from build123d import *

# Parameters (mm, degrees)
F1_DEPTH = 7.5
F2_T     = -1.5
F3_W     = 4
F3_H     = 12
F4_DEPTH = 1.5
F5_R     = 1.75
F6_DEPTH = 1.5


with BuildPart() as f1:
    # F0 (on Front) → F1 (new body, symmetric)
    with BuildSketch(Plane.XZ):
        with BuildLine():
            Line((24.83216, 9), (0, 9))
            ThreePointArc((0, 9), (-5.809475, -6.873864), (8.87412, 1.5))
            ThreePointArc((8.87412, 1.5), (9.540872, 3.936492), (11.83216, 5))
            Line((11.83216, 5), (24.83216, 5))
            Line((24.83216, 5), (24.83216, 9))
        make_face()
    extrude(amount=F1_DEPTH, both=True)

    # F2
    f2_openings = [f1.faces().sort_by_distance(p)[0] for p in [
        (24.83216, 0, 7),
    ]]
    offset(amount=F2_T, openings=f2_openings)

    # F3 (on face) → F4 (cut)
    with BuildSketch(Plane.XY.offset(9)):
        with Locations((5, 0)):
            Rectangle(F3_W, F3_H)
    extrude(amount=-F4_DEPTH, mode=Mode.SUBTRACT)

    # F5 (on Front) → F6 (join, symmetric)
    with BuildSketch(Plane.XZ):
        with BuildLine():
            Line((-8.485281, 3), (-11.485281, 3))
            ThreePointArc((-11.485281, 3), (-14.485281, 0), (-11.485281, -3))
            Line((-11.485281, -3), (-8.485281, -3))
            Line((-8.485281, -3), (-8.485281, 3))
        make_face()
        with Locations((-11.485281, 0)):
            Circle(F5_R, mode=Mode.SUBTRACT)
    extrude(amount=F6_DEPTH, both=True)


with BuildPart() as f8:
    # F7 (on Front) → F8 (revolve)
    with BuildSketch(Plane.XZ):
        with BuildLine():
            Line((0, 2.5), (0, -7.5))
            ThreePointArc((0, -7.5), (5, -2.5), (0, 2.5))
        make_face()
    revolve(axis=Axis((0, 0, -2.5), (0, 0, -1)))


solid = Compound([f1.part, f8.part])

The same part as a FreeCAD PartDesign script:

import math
import FreeCAD as App
import Part
import Sketcher

V = App.Vector
Q = App.Units.Quantity


def faces_at(feature, points):
    """Names of the faces that lie closest to the given points."""
    faces = feature.Shape.Faces
    near = lambda p: min(range(len(faces)), key=lambda i: faces[i].distToShape(Part.Vertex(*p))[0])
    return sorted({f"Face{near(p) + 1}" for p in points})

doc = App.newDocument("Part")
body = doc.addObject("PartDesign::Body", "Body")

sketch1 = body.newObject("Sketcher::SketchObject", "Sketch")
sketch1.AttachmentSupport = (doc.getObject("XZ_Plane"), [""])
sketch1.MapMode = "FlatFace"
sketch1.addGeometry(Part.LineSegment(V(24.8, 9, 0), V(0, 9, 0)), False)
sketch1.addGeometry(Part.ArcOfCircle(Part.Circle(V(0, 0, 0), V(0, 0, 1), 9), math.radians(90), math.radians(370)), False)
sketch1.addGeometry(Part.ArcOfCircle(Part.Circle(V(11.8, 2, 0), V(0, 0, 1), 3), math.radians(90), math.radians(190)), False)
sketch1.addGeometry(Part.LineSegment(V(11.8, 5, 0), V(24.8, 5, 0)), False)
sketch1.addGeometry(Part.LineSegment(V(24.8, 5, 0), V(24.8, 9, 0)), False)
sketch1.addConstraint(Sketcher.Constraint("Tangent", 0, 2, 1, 1))
sketch1.addConstraint(Sketcher.Constraint("Tangent", 1, 2, 2, 2))
sketch1.addConstraint(Sketcher.Constraint("Tangent", 2, 1, 3, 1))
sketch1.addConstraint(Sketcher.Constraint("Coincident", 3, 2, 4, 1))
sketch1.addConstraint(Sketcher.Constraint("Coincident", 4, 2, 0, 1))
sketch1.addConstraint(Sketcher.Constraint("Horizontal", 0))
sketch1.addConstraint(Sketcher.Constraint("Horizontal", 3))
sketch1.addConstraint(Sketcher.Constraint("Vertical", 4))
sketch1.addConstraint(Sketcher.Constraint("Coincident", 1, 3, -1, 1))
sketch1.addConstraint(Sketcher.Constraint("Radius", 1, Q("9 mm")))
sketch1.addConstraint(Sketcher.Constraint("Radius", 2, Q("3 mm")))
sketch1.addConstraint(Sketcher.Constraint("DistanceX", 3, 1, 3, 2, Q("13 mm")))
sketch1.addConstraint(Sketcher.Constraint("DistanceY", 4, 1, 4, 2, Q("4 mm")))
pad1 = body.newObject("PartDesign::Pad", "Pad")
pad1.Profile = sketch1
pad1.Length = 15
pad1.Midplane = True
doc.recompute()

thickness = body.newObject("PartDesign::Thickness", "Thickness")
thickness.Base = (pad1, faces_at(pad1, [(24.832, 0, 7)]))
thickness.Value = 1.5
thickness.Reversed = True
thickness.Join = "Arc"

sketch2 = body.newObject("Sketcher::SketchObject", "Sketch001")
sketch2.AttachmentSupport = (doc.getObject("XY_Plane"), [""])
sketch2.MapMode = "FlatFace"
sketch2.AttachmentOffset = App.Placement(V(0, 0, 9), App.Rotation())
sketch2.addGeometry(Part.LineSegment(V(3, 6, 0), V(3, -6, 0)), False)
sketch2.addGeometry(Part.LineSegment(V(3, -6, 0), V(7, -6, 0)), False)
sketch2.addGeometry(Part.LineSegment(V(7, -6, 0), V(7, 6, 0)), False)
sketch2.addGeometry(Part.LineSegment(V(7, 6, 0), V(3, 6, 0)), False)
sketch2.addConstraint(Sketcher.Constraint("Coincident", 0, 2, 1, 1))
sketch2.addConstraint(Sketcher.Constraint("Coincident", 1, 2, 2, 1))
sketch2.addConstraint(Sketcher.Constraint("Coincident", 2, 2, 3, 1))
sketch2.addConstraint(Sketcher.Constraint("Coincident", 3, 2, 0, 1))
sketch2.addConstraint(Sketcher.Constraint("Vertical", 0))
sketch2.addConstraint(Sketcher.Constraint("Horizontal", 1))
sketch2.addConstraint(Sketcher.Constraint("Vertical", 2))
sketch2.addConstraint(Sketcher.Constraint("Horizontal", 3))
sketch2.addConstraint(Sketcher.Constraint("DistanceX", 1, 1, 1, 2, Q("4 mm")))
sketch2.addConstraint(Sketcher.Constraint("DistanceY", 0, 2, 0, 1, Q("12 mm")))
sketch2.addConstraint(Sketcher.Constraint("DistanceX", -1, 1, 0, 2, Q("3 mm")))
sketch2.addConstraint(Sketcher.Constraint("DistanceY", 0, 2, -1, 1, Q("6 mm")))
pocket1 = body.newObject("PartDesign::Pocket", "Pocket")
pocket1.Profile = sketch2
pocket1.Length = 1.5

sketch3 = body.newObject("Sketcher::SketchObject", "Sketch002")
sketch3.AttachmentSupport = (doc.getObject("XZ_Plane"), [""])
sketch3.MapMode = "FlatFace"
sketch3.addGeometry(Part.LineSegment(V(-8.5, 3, 0), V(-11.5, 3, 0)), False)
sketch3.addGeometry(Part.ArcOfCircle(Part.Circle(V(-11.5, 0, 0), V(0, 0, 1), 3), math.radians(90), math.radians(270)), False)
sketch3.addGeometry(Part.LineSegment(V(-11.5, -3, 0), V(-8.5, -3, 0)), False)
sketch3.addGeometry(Part.LineSegment(V(-8.5, -3, 0), V(-8.5, 3, 0)), False)
sketch3.addGeometry(Part.Circle(V(-11.5, 0, 0), V(0, 0, 1), 1.8), False)
sketch3.addConstraint(Sketcher.Constraint("Tangent", 0, 2, 1, 1))
sketch3.addConstraint(Sketcher.Constraint("Tangent", 1, 2, 2, 1))
sketch3.addConstraint(Sketcher.Constraint("Coincident", 2, 2, 3, 1))
sketch3.addConstraint(Sketcher.Constraint("Coincident", 3, 2, 0, 1))
sketch3.addConstraint(Sketcher.Constraint("Horizontal", 0))
sketch3.addConstraint(Sketcher.Constraint("Horizontal", 2))
sketch3.addConstraint(Sketcher.Constraint("Vertical", 3))
sketch3.addConstraint(Sketcher.Constraint("Coincident", 4, 3, 1, 3))
sketch3.addConstraint(Sketcher.Constraint("PointOnObject", 1, 3, -1))
sketch3.addConstraint(Sketcher.Constraint("Radius", 1, Q("3 mm")))
sketch3.addConstraint(Sketcher.Constraint("Diameter", 4, Q("3.5 mm")))
sketch3.addConstraint(Sketcher.Constraint("DistanceX", 0, 2, 0, 1, Q("3 mm")))
sketch3.addConstraint(Sketcher.Constraint("DistanceX", 1, 3, -1, 1, Q("11.485281 mm")))
pad2 = body.newObject("PartDesign::Pad", "Pad001")
pad2.Profile = sketch3
pad2.Length = 3
pad2.Midplane = True
body2 = doc.addObject("PartDesign::Body", "Body001")

sketch4 = body2.newObject("Sketcher::SketchObject", "Sketch003")
sketch4.AttachmentSupport = (doc.getObject("XZ_Plane001"), [""])
sketch4.MapMode = "FlatFace"
sketch4.addGeometry(Part.LineSegment(V(0, 2, 0), V(0, -8, 0)), False)
sketch4.addGeometry(Part.ArcOfCircle(Part.Circle(V(0, -2, 0), V(0, 0, 1), 5), math.radians(-90), math.radians(90)), False)
sketch4.addConstraint(Sketcher.Constraint("Coincident", 0, 1, 1, 2))
sketch4.addConstraint(Sketcher.Constraint("Coincident", 1, 1, 0, 2))
sketch4.addConstraint(Sketcher.Constraint("Vertical", 0))
sketch4.addConstraint(Sketcher.Constraint("PointOnObject", 1, 3, -2))
sketch4.addConstraint(Sketcher.Constraint("PointOnObject", 0, 1, -2))
sketch4.addConstraint(Sketcher.Constraint("Radius", 1, Q("5 mm")))
sketch4.addConstraint(Sketcher.Constraint("DistanceY", 1, 3, -1, 1, Q("2.5 mm")))
revolution = body2.newObject("PartDesign::Revolution", "Revolution")
revolution.Profile = sketch4
revolution.ReferenceAxis = (sketch4, ["V_Axis"])
revolution.Angle = 360

doc.recompute()
